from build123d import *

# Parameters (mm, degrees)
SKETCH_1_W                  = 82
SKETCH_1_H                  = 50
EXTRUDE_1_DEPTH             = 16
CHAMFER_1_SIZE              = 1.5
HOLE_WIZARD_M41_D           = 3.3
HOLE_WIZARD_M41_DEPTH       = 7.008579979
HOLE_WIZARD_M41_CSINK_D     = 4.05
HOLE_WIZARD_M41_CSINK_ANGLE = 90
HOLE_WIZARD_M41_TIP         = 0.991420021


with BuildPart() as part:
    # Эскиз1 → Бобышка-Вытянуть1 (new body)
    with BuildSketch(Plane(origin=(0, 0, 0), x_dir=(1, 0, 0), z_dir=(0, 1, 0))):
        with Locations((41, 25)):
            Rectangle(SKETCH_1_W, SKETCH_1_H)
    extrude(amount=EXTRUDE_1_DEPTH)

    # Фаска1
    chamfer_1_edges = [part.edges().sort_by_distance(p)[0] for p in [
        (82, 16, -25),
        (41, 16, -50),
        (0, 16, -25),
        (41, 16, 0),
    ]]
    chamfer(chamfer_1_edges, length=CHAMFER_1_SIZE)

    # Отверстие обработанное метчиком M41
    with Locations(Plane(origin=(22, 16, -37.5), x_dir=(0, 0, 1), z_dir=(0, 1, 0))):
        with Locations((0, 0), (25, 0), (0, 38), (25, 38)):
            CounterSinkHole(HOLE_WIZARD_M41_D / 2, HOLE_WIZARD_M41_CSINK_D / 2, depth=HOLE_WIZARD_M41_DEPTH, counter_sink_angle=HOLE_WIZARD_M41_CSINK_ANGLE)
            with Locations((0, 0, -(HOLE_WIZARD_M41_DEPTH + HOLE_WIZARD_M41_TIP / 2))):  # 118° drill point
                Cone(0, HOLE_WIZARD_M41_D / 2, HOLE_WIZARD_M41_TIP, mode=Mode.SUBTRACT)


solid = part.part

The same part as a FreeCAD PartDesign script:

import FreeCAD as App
import Part
import Sketcher
from FreeCAD import Vector


def edges_at(feature, points):
    """Names of the edges that pass closest to the given points."""
    edges = feature.Shape.Edges
    near = lambda p: min(range(len(edges)), key=lambda i: edges[i].distToShape(Part.Vertex(*p))[0])
    return sorted({f"Edge{near(p) + 1}" for p in points})


def add_polygon(sketch, points):
    """Adds a closed chain of lines whose ends are joined by coincident constraints."""
    first, n = sketch.GeometryCount, len(points)
    for a, b in zip(points, points[1:] + points[:1]):
        sketch.addGeometry(Part.LineSegment(App.Vector(*a, 0), App.Vector(*b, 0)), False)
    for i in range(n):
        sketch.addConstraint(Sketcher.Constraint("Coincident", first + i, 2, first + (i + 1) % n, 1))

doc = App.newDocument("Part")
params = doc.addObject("Spreadsheet::Sheet", "Params")
for row, (alias, value) in enumerate([
    ("sketch1_width", "82 mm"),
    ("sketch1_height", "50 mm"),
    ("pad1_length", "16 mm"),
    ("chamfer_size", "1.5 mm"),
    ("sketch2_diameter", "3.3 mm"),
    ("hole_diameter", "3.3 mm"),
    ("hole_depth", "7.00858 mm"),
    ("hole_csink_diameter", "4.05 mm"),
], start=1):
    params.set(f"A{row}", alias)
    params.set(f"B{row}", "=" + value)
    params.setAlias(f"B{row}", alias)

body = doc.addObject("PartDesign::Body", "Body")

# Sketch on XZ plane
sketch1 = body.newObject("Sketcher::SketchObject", "Sketch")
sketch1.AttachmentSupport = (doc.getObject("XZ_Plane"), [""])
sketch1.MapMode = "FlatFace"
add_polygon(sketch1, [(0, -50), (0, 0), (82, 0), (82, -50)])  # lines 0-3
sketch1.addConstraint([
    Sketcher.Constraint("Vertical", 0),
    Sketcher.Constraint("Horizontal", 1),
    Sketcher.Constraint("Vertical", 2),
    Sketcher.Constraint("Horizontal", 3),
    Sketcher.Constraint("Coincident", 0, 2, -1, 1),
    Sketcher.Constraint("DistanceX", 1, 1, 1, 2, 82.0),
    Sketcher.Constraint("DistanceY", 0, 1, 0, 2, 50.0),
])
sketch1.setExpression("Constraints[9]", "Params.sketch1_width")
sketch1.setExpression("Constraints[10]", "Params.sketch1_height")
pad1 = body.newObject("PartDesign::Pad", "Pad")
pad1.Profile = sketch1
pad1.setExpression("Length", "Params.pad1_length")
pad1.Reversed = True
doc.recompute()

chamfer = body.newObject("PartDesign::Chamfer", "Chamfer")
chamfer.Base = (pad1, edges_at(pad1, [
    (82, 16, -25),
    (41, 16, -50),
    (0, 16, -25),
    (41, 16, 0),
]))
chamfer.setExpression("Size", "Params.chamfer_size")

# Sketch on XZ plane
sketch2 = body.newObject("Sketcher::SketchObject", "Sketch001")
sketch2.AttachmentSupport = (doc.getObject("XZ_Plane"), [""])
sketch2.MapMode = "FlatFace"
sketch2.AttachmentOffset = App.Placement(Vector(0, 0, -16), App.Rotation())
sketch2.addGeometry([
    Part.Circle(Vector(22, -37.5, 0), Vector(0, 0, 1), 1.6),
    Part.Circle(Vector(22, -12.5, 0), Vector(0, 0, 1), 1.6),
    Part.Circle(Vector(60, -37.5, 0), Vector(0, 0, 1), 1.6),
    Part.Circle(Vector(60, -12.5, 0), Vector(0, 0, 1), 1.6),
], False)
sketch2.addConstraint([
    Sketcher.Constraint("Equal", 0, 1),
    Sketcher.Constraint("Equal", 1, 2),
    Sketcher.Constraint("Equal", 2, 3),
    Sketcher.Constraint("Horizontal", 0, 3, 2, 3),
    Sketcher.Constraint("Horizontal", 1, 3, 3, 3),
    Sketcher.Constraint("Vertical", 0, 3, 1, 3),
    Sketcher.Constraint("Vertical", 2, 3, 3, 3),
    Sketcher.Constraint("Diameter", 0, 3.3),
    Sketcher.Constraint("DistanceX", -1, 1, 0, 3, 22.0),
    Sketcher.Constraint("DistanceX", -1, 1, 2, 3, 60.0),
    Sketcher.Constraint("DistanceY", 0, 3, 1, 3, 25.0),
    Sketcher.Constraint("DistanceY", 0, 3, -1, 1, 37.5),
])
sketch2.setExpression("Constraints[7]", "Params.sketch2_diameter")
doc.recompute()
hole = body.newObject("PartDesign::Hole", "Hole")
hole.Profile = sketch2
hole.ThreadType = "None"
hole.setExpression("Diameter", "Params.hole_diameter")
hole.DepthType = "Dimension"
hole.setExpression("Depth", "Params.hole_depth")
hole.DrillPoint = "Angled"
hole.DrillPointAngle = 118
hole.HoleCutType = "Countersink"
hole.setExpression("HoleCutDiameter", "Params.hole_csink_diameter")
hole.HoleCutCountersinkAngle = 90
hole.Reversed = True

doc.recompute()
